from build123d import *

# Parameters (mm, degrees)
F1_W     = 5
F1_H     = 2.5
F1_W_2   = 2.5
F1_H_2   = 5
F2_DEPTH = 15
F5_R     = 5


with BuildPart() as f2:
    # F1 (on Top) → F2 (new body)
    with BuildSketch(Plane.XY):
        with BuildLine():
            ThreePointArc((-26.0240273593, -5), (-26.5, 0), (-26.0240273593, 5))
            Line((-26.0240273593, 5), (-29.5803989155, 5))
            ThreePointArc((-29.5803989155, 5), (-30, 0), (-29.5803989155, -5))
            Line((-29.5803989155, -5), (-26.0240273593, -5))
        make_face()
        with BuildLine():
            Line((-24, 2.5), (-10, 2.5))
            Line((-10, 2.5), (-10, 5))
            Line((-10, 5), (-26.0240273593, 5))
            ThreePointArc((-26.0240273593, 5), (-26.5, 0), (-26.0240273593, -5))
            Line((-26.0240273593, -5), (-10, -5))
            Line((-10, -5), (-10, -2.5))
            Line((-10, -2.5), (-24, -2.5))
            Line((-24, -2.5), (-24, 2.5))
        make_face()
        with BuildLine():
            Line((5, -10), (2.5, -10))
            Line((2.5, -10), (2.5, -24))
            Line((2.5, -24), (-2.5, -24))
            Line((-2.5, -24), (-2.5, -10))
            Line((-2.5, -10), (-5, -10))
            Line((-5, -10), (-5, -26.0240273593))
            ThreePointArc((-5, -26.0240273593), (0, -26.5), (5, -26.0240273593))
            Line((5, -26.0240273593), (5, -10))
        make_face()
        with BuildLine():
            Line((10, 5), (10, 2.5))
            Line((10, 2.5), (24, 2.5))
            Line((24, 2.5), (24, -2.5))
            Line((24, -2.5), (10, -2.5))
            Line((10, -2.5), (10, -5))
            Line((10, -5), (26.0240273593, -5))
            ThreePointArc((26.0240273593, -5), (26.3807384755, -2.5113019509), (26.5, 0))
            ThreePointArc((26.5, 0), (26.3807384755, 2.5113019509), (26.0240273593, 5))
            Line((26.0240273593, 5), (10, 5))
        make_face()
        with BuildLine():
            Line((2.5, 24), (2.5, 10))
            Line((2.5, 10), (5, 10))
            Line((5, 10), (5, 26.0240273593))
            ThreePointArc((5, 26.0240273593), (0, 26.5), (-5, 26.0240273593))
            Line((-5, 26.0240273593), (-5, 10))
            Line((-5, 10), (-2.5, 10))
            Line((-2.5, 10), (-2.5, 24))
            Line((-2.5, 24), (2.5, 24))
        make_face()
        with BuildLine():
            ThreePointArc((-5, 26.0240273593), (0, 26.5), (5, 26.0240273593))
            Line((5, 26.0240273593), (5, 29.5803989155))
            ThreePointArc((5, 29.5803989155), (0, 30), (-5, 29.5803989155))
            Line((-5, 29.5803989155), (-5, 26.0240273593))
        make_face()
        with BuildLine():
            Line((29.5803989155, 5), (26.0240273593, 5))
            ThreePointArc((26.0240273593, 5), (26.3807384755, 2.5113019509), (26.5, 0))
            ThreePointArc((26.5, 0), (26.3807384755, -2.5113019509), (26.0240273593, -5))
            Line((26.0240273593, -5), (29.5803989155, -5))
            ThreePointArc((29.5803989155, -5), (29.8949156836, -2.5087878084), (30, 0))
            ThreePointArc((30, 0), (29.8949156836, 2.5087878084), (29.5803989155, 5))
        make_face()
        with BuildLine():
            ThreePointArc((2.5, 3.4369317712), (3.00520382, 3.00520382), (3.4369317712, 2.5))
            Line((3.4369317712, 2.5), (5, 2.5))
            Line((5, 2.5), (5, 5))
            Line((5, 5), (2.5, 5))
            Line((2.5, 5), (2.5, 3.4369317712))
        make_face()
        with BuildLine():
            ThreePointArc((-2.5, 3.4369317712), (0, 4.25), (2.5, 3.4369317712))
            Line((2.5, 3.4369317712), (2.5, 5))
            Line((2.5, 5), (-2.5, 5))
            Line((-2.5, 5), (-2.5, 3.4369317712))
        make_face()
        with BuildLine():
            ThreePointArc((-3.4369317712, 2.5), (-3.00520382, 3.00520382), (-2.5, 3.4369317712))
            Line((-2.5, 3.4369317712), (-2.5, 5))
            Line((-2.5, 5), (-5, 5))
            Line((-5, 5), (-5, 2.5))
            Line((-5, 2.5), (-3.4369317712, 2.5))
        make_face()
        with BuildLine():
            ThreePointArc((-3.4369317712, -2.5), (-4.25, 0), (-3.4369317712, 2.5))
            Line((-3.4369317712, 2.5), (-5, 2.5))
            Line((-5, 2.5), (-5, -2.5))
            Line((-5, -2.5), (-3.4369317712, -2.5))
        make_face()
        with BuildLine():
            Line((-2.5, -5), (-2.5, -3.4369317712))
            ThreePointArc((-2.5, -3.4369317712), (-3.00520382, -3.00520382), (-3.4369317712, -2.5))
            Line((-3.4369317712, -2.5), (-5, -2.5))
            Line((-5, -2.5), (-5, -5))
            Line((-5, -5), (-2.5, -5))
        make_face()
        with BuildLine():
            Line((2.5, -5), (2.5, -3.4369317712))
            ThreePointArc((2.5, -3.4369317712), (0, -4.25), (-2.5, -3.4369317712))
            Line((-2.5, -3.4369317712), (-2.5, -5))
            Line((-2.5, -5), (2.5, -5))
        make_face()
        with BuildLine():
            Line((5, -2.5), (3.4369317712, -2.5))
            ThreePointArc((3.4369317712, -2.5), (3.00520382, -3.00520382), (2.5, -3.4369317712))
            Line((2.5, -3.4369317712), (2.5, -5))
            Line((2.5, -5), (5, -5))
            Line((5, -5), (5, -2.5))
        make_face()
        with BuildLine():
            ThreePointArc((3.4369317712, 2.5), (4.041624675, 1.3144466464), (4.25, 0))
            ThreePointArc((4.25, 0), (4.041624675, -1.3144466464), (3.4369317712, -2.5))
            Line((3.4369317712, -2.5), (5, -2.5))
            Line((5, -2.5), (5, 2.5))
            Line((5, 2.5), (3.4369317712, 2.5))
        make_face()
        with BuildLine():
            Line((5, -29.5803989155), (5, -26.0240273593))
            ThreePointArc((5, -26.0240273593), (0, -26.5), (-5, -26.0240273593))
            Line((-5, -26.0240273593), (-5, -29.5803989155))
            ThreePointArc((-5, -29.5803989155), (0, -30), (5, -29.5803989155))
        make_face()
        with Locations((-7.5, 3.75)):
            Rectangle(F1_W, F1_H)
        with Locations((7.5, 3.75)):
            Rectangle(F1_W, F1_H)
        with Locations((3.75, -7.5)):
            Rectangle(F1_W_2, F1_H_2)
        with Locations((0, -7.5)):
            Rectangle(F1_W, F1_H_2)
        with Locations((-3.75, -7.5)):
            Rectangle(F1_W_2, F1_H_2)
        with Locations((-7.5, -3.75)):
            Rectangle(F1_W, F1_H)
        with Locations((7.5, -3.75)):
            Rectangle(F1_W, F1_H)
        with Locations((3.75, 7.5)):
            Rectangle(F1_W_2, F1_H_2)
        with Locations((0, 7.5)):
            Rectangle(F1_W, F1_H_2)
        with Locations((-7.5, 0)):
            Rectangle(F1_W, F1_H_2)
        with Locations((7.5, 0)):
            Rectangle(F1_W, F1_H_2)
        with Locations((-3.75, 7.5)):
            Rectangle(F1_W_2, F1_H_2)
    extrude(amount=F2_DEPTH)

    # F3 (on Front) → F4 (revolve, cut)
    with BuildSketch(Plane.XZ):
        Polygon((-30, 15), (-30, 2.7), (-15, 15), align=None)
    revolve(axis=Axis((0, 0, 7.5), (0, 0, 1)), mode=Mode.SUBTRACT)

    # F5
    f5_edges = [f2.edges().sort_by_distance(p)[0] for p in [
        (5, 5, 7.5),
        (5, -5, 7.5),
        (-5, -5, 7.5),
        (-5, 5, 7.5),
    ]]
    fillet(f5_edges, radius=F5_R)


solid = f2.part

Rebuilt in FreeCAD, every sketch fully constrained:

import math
import FreeCAD as App
import Part
import Sketcher
from FreeCAD import Vector


def edges_at(feature, points):
    """Names of the edges that pass closest to the given points."""
    edges = feature.Shape.Edges
    near = lambda p: min(range(len(edges)), key=lambda i: edges[i].distToShape(Part.Vertex(*p))[0])
    return sorted({f"Edge{near(p) + 1}" for p in points})

doc = App.newDocument("Part")
body = doc.addObject("PartDesign::Body", "Body")

sketch1 = body.newObject("Sketcher::SketchObject", "Sketch")
sketch1.AttachmentSupport = (doc.getObject("XY_Plane"), [""])
sketch1.MapMode = "FlatFace"
sketch1.addGeometry(Part.LineSegment(Vector(-5, 29.6, 0), Vector(-5, 5, 0)), False)
sketch1.addGeometry(Part.LineSegment(Vector(-5, 5, 0), Vector(-29.6, 5, 0)), False)
sketch1.addGeometry(Part.ArcOfCircle(Part.Circle(Vector(0, 0, 0), Vector(0, 0, 1), 30), math.radians(170.41), math.radians(189.59)), False)
sketch1.addGeometry(Part.LineSegment(Vector(-29.6, -5, 0), Vector(-5, -5, 0)), False)
sketch1.addGeometry(Part.LineSegment(Vector(-5, -5, 0), Vector(-5, -29.6, 0)), False)
sketch1.addGeometry(Part.ArcOfCircle(Part.Circle(Vector(0, 0, 0), Vector(0, 0, 1), 30), math.radians(-99.59), math.radians(-80.41)), False)
sketch1.addGeometry(Part.LineSegment(Vector(5, -29.6, 0), Vector(5, -5, 0)), False)
sketch1.addGeometry(Part.LineSegment(Vector(5, -5, 0), Vector(29.6, -5, 0)), False)
sketch1.addGeometry(Part.ArcOfCircle(Part.Circle(Vector(0, 0, 0), Vector(0, 0, 1), 30), math.radians(-9.59), math.radians(0)), False)
sketch1.addGeometry(Part.ArcOfCircle(Part.Circle(Vector(0, 0, 0), Vector(0, 0, 1), 30), math.radians(0), math.radians(9.59)), False)
sketch1.addGeometry(Part.LineSegment(Vector(29.6, 5, 0), Vector(5, 5, 0)), False)
sketch1.addGeometry(Part.LineSegment(Vector(5, 5, 0), Vector(5, 29.6, 0)), False)
sketch1.addGeometry(Part.ArcOfCircle(Part.Circle(Vector(0, 0, 0), Vector(0, 0, 1), 30), math.radians(80.41), math.radians(99.59)), False)
sketch1.addGeometry(Part.LineSegment(Vector(-2.5, -24, 0), Vector(-2.5, -10, 0)), False)
sketch1.addGeometry(Part.LineSegment(Vector(-2.5, -10, 0), Vector(2.5, -10, 0)), False)
sketch1.addGeometry(Part.LineSegment(Vector(2.5, -10, 0), Vector(2.5, -24, 0)), False)
sketch1.addGeometry(Part.LineSegment(Vector(2.5, -24, 0), Vector(-2.5, -24, 0)), False)
sketch1.addGeometry(Part.LineSegment(Vector(-24, -2.5, 0), Vector(-24, 2.5, 0)), False)
sketch1.addGeometry(Part.LineSegment(Vector(-24, 2.5, 0), Vector(-10, 2.5, 0)), False)
sketch1.addGeometry(Part.LineSegment(Vector(-10, 2.5, 0), Vector(-10, -2.5, 0)), False)
sketch1.addGeometry(Part.LineSegment(Vector(-10, -2.5, 0), Vector(-24, -2.5, 0)), False)
sketch1.addGeometry(Part.ArcOfCircle(Part.Circle(Vector(0, 0, 0), Vector(0, 0, 1), 4.2), math.radians(-126), math.radians(-54)), False)
sketch1.addGeometry(Part.ArcOfCircle(Part.Circle(Vector(0, 0, 0), Vector(0, 0, 1), 4.3), math.radians(-143.97), math.radians(-126.03)), False)
sketch1.addGeometry(Part.ArcOfCircle(Part.Circle(Vector(0, 0, 0), Vector(0, 0, 1), 4.2), math.radians(144), math.radians(216)), False)
sketch1.addGeometry(Part.ArcOfCircle(Part.Circle(Vector(0, 0, 0), Vector(0, 0, 1), 4.3), math.radians(126.03), math.radians(143.97)), False)
sketch1.addGeometry(Part.ArcOfCircle(Part.Circle(Vector(0, 0, 0), Vector(0, 0, 1), 4.2), math.radians(54), math.radians(126)), False)
sketch1.addGeometry(Part.ArcOfCircle(Part.Circle(Vector(0, 0, 0), Vector(0, 0, 1), 4.3), math.radians(36.03), math.radians(53.97)), False)
sketch1.addGeometry(Part.ArcOfCircle(Part.Circle(Vector(0, 0, 0), Vector(0, 0, 1), 4.2), math.radians(0), math.radians(36)), False)
sketch1.addGeometry(Part.ArcOfCircle(Part.Circle(Vector(0, 0, 0), Vector(0, 0, 1), 4.2), math.radians(-36), math.radians(0)), False)
sketch1.addGeometry(Part.ArcOfCircle(Part.Circle(Vector(0, 0, 0), Vector(0, 0, 1), 4.3), math.radians(-53.97), math.radians(-36.03)), False)
sketch1.addGeometry(Part.LineSegment(Vector(24, -2.5, 0), Vector(10, -2.5, 0)), False)
sketch1.addGeometry(Part.LineSegment(Vector(10, -2.5, 0), Vector(10, 2.5, 0)), False)
sketch1.addGeometry(Part.LineSegment(Vector(10, 2.5, 0), Vector(24, 2.5, 0)), False)
sketch1.addGeometry(Part.LineSegment(Vector(24, 2.5, 0), Vector(24, -2.5, 0)), False)
sketch1.addGeometry(Part.LineSegment(Vector(2.5, 10, 0), Vector(-2.5, 10, 0)), False)
sketch1.addGeometry(Part.LineSegment(Vector(-2.5, 10, 0), Vector(-2.5, 24, 0)), False)
sketch1.addGeometry(Part.LineSegment(Vector(-2.5, 24, 0), Vector(2.5, 24, 0)), False)
sketch1.addGeometry(Part.LineSegment(Vector(2.5, 24, 0), Vector(2.5, 10, 0)), False)
sketch1.addConstraint(Sketcher.Constraint("Coincident", 0, 2, 1, 1))
sketch1.addConstraint(Sketcher.Constraint("Coincident", 1, 2, 2, 1))
sketch1.addConstraint(Sketcher.Constraint("Coincident", 2, 2, 3, 1))
sketch1.addConstraint(Sketcher.Constraint("Coincident", 3, 2, 4, 1))
sketch1.addConstraint(Sketcher.Constraint("Coincident", 4, 2, 5, 1))
sketch1.addConstraint(Sketcher.Constraint("Coincident", 5, 2, 6, 1))
sketch1.addConstraint(Sketcher.Constraint("Coincident", 6, 2, 7, 1))
sketch1.addConstraint(Sketcher.Constraint("Coincident", 7, 2, 8, 1))
sketch1.addConstraint(Sketcher.Constraint("Tangent", 8, 2, 9, 1))
sketch1.addConstraint(Sketcher.Constraint("Coincident", 9, 2, 10, 1))
sketch1.addConstraint(Sketcher.Constraint("Coincident", 10, 2, 11, 1))
sketch1.addConstraint(Sketcher.Constraint("Coincident", 11, 2, 12, 1))
sketch1.addConstraint(Sketcher.Constraint("Coincident", 12, 2, 0, 1))
sketch1.addConstraint(Sketcher.Constraint("Coincident", 13, 2, 14, 1))
sketch1.addConstraint(Sketcher.Constraint("Coincident", 14, 2, 15, 1))
sketch1.addConstraint(Sketcher.Constraint("Coincident", 15, 2, 16, 1))
sketch1.addConstraint(Sketcher.Constraint("Coincident", 16, 2, 13, 1))
sketch1.addConstraint(Sketcher.Constraint("Coincident", 17, 2, 18, 1))
sketch1.addConstraint(Sketcher.Constraint("Coincident", 18, 2, 19, 1))
sketch1.addConstraint(Sketcher.Constraint("Coincident", 19, 2, 20, 1))
sketch1.addConstraint(Sketcher.Constraint("Coincident", 20, 2, 17, 1))
sketch1.addConstraint(Sketcher.Constraint("Tangent", 21, 1, 22, 2))
sketch1.addConstraint(Sketcher.Constraint("Tangent", 22, 1, 23, 2))
sketch1.addConstraint(Sketcher.Constraint("Tangent", 23, 1, 24, 2))
sketch1.addConstraint(Sketcher.Constraint("Tangent", 24, 1, 25, 2))
sketch1.addConstraint(Sketcher.Constraint("Tangent", 25, 1, 26, 2))
sketch1.addConstraint(Sketcher.Constraint("Tangent", 26, 1, 27, 2))
sketch1.addConstraint(Sketcher.Constraint("Tangent", 27, 1, 28, 2))
sketch1.addConstraint(Sketcher.Constraint("Tangent", 28, 1, 29, 2))
sketch1.addConstraint(Sketcher.Constraint("Tangent", 29, 1, 21, 2))
sketch1.addConstraint(Sketcher.Constraint("Coincident", 30, 2, 31, 1))
sketch1.addConstraint(Sketcher.Constraint("Coincident", 31, 2, 32, 1))
sketch1.addConstraint(Sketcher.Constraint("Coincident", 32, 2, 33, 1))
sketch1.addConstraint(Sketcher.Constraint("Coincident", 33, 2, 30, 1))
sketch1.addConstraint(Sketcher.Constraint("Coincident", 34, 2, 35, 1))
sketch1.addConstraint(Sketcher.Constraint("Coincident", 35, 2, 36, 1))
sketch1.addConstraint(Sketcher.Constraint("Coincident", 36, 2, 37, 1))
sketch1.addConstraint(Sketcher.Constraint("Coincident", 37, 2, 34, 1))
sketch1.addConstraint(Sketcher.Constraint("Vertical", 0))
sketch1.addConstraint(Sketcher.Constraint("Horizontal", 1))
sketch1.addConstraint(Sketcher.Constraint("Horizontal", 3))
sketch1.addConstraint(Sketcher.Constraint("Vertical", 4))
sketch1.addConstraint(Sketcher.Constraint("Vertical", 6))
sketch1.addConstraint(Sketcher.Constraint("Horizontal", 7))
sketch1.addConstraint(Sketcher.Constraint("Horizontal", 10))
sketch1.addConstraint(Sketcher.Constraint("Vertical", 11))
sketch1.addConstraint(Sketcher.Constraint("Vertical", 13))
sketch1.addConstraint(Sketcher.Constraint("Horizontal", 14))
sketch1.addConstraint(Sketcher.Constraint("Vertical", 15))
sketch1.addConstraint(Sketcher.Constraint("Horizontal", 16))
sketch1.addConstraint(Sketcher.Constraint("Vertical", 17))
sketch1.addConstraint(Sketcher.Constraint("Horizontal", 18))
sketch1.addConstraint(Sketcher.Constraint("Vertical", 19))
sketch1.addConstraint(Sketcher.Constraint("Horizontal", 20))
sketch1.addConstraint(Sketcher.Constraint("Horizontal", 30))
sketch1.addConstraint(Sketcher.Constraint("Vertical", 31))
sketch1.addConstraint(Sketcher.Constraint("Horizontal", 32))
sketch1.addConstraint(Sketcher.Constraint("Vertical", 33))
sketch1.addConstraint(Sketcher.Constraint("Horizontal", 34))
sketch1.addConstraint(Sketcher.Constraint("Vertical", 35))
sketch1.addConstraint(Sketcher.Constraint("Horizontal", 36))
sketch1.addConstraint(Sketcher.Constraint("Vertical", 37))
sketch1.addConstraint(Sketcher.Constraint("Coincident", 2, 3, -1, 1))
sketch1.addConstraint(Sketcher.Constraint("Coincident", 5, 3, -1, 1))
sketch1.addConstraint(Sketcher.Constraint("Coincident", 8, 3, -1, 1))
sketch1.addConstraint(Sketcher.Constraint("Coincident", 12, 3, -1, 1))
sketch1.addConstraint(Sketcher.Constraint("Coincident", 21, 3, -1, 1))
sketch1.addConstraint(Sketcher.Constraint("Coincident", 23, 3, -1, 1))
sketch1.addConstraint(Sketcher.Constraint("Coincident", 25, 3, -1, 1))
sketch1.addConstraint(Sketcher.Constraint("Coincident", 27, 3, -1, 1))
sketch1.addConstraint(Sketcher.Constraint("Equal", 2, 5))
sketch1.addConstraint(Sketcher.Constraint("Equal", 5, 8))
sketch1.addConstraint(Sketcher.Constraint("Equal", 8, 9))
sketch1.addConstraint(Sketcher.Constraint("Equal", 9, 12))
sketch1.addConstraint(Sketcher.Constraint("Symmetric", 0, 2, 6, 2, -1, 1))
sketch1.addConstraint(Sketcher.Constraint("Symmetric", 3, 2, 10, 2, -1, 1))
sketch1.addConstraint(Sketcher.Constraint("Symmetric", 18, 2, 30, 2, -1, 1))
sketch1.addConstraint(Sketcher.Constraint("Symmetric", 20, 2, 32, 2, -1, 1))
sketch1.addConstraint(Sketcher.Constraint("Symmetric", 14, 2, 34, 2, -1, 1))
sketch1.addConstraint(Sketcher.Constraint("Symmetric", 16, 2, 36, 2, -1, 1))
sketch1.addConstraint(Sketcher.Constraint("Symmetric", 3, 2, 6, 2, -2))
sketch1.addConstraint(Sketcher.Constraint("PointOnObject", 8, 2, -1))
sketch1.addConstraint(Sketcher.Constraint("PointOnObject", 27, 1, -1))
sketch1.addConstraint(Sketcher.Constraint("Horizontal", 20, 2, 22, 1))
sketch1.addConstraint(Sketcher.Constraint("Horizontal", 18, 2, 23, 1))
sketch1.addConstraint(Sketcher.Constraint("Horizontal", 24, 1, 25, 1))
sketch1.addConstraint(Sketcher.Constraint("Horizontal", 23, 1, 26, 1))
sketch1.addConstraint(Sketcher.Constraint("Horizontal", 22, 1, 28, 1))
sketch1.addConstraint(Sketcher.Constraint("Horizontal", 21, 1, 29, 1))
sketch1.addConstraint(Sketcher.Constraint("Horizontal", 28, 1, 30, 2))
sketch1.addConstraint(Sketcher.Constraint("Vertical", 16, 2, 21, 1))
sketch1.addConstraint(Sketcher.Constraint("Vertical", 21, 1, 24, 1))
sketch1.addConstraint(Sketcher.Constraint("Vertical", 15, 2, 25, 1))
sketch1.addConstraint(Sketcher.Constraint("Equal", 10, 0))
sketch1.addConstraint(Sketcher.Constraint("Equal", 32, 13))
sketch1.addConstraint(Sketcher.Constraint("Equal", 36, 17))
sketch1.addConstraint(Sketcher.Constraint("Radius", 2, 30.0))
sketch1.addConstraint(Sketcher.Constraint("DistanceX", 14, 1, 14, 2, 5.0))
sketch1.addConstraint(Sketcher.Constraint("DistanceX", 18, 1, 18, 2, 14.0))
sketch1.addConstraint(Sketcher.Constraint("Radius", 21, 4.25))
sketch1.addConstraint(Sketcher.Constraint("DistanceX", 0, 2, -1, 1, 5.0))
sketch1.addConstraint(Sketcher.Constraint("DistanceY", 13, 2, -1, 1, 10.0))
sketch1.addConstraint(Sketcher.Constraint("DistanceX", 17, 2, -1, 1, 24.0))
pad1 = body.newObject("PartDesign::Pad", "Pad")
pad1.Profile = sketch1
pad1.Length = 15

sketch2 = body.newObject("Sketcher::SketchObject", "Sketch001")
sketch2.AttachmentSupport = (doc.getObject("XZ_Plane"), [""])
sketch2.MapMode = "FlatFace"
sketch2.addGeometry(Part.LineSegment(Vector(-30, 15, 0), Vector(-30, 3, 0)), False)
sketch2.addGeometry(Part.LineSegment(Vector(-30, 3, 0), Vector(-15, 15, 0)), False)
sketch2.addGeometry(Part.LineSegment(Vector(-15, 15, 0), Vector(-30, 15, 0)), False)
sketch2.addConstraint(Sketcher.Constraint("Coincident", 0, 2, 1, 1))
sketch2.addConstraint(Sketcher.Constraint("Coincident", 1, 2, 2, 1))
sketch2.addConstraint(Sketcher.Constraint("Coincident", 2, 2, 0, 1))
sketch2.addConstraint(Sketcher.Constraint("Vertical", 0))
sketch2.addConstraint(Sketcher.Constraint("Horizontal", 2))
sketch2.addConstraint(Sketcher.Constraint("DistanceX", 2, 2, 2, 1, 15.0))
sketch2.addConstraint(Sketcher.Constraint("DistanceY", 0, 2, 0, 1, 12.3))
sketch2.addConstraint(Sketcher.Constraint("DistanceX", 0, 2, -1, 1, 30.0))
sketch2.addConstraint(Sketcher.Constraint("DistanceY", -1, 1, 1, 2, 15.0))
groove = body.newObject("PartDesign::Groove", "Groove")
groove.Profile = sketch2
groove.ReferenceAxis = (sketch2, ["V_Axis"])
groove.Angle = 360
doc.recompute()

fillet = body.newObject("PartDesign::Fillet", "Fillet")
fillet.Base = (groove, edges_at(groove, [
    (5, 5, 7.5),
    (5, -5, 7.5),
    (-5, -5, 7.5),
    (-5, 5, 7.5),
]))
fillet.Radius = 5

doc.recompute()
